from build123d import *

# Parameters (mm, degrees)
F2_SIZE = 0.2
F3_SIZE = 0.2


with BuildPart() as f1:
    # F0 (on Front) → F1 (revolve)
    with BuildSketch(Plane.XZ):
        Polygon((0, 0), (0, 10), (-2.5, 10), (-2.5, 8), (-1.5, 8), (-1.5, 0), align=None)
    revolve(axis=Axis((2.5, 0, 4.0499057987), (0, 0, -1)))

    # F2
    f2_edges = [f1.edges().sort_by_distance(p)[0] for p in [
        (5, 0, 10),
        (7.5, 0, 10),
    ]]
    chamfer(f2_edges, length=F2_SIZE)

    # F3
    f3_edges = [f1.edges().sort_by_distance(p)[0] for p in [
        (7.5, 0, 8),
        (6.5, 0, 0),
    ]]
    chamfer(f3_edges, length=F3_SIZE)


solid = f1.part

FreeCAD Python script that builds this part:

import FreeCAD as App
import Part
import Sketcher

V = App.Vector
Q = App.Units.Quantity


def edges_at(feature, points):
    """Names of the edges that pass closest to the given points."""
    edges = feature.Shape.Edges
    near = lambda p: min(range(len(edges)), key=lambda i: edges[i].distToShape(Part.Vertex(*p))[0])
    return sorted({f"Edge{near(p) + 1}" for p in points})


def add_polygon(sketch, points):
    """Adds a closed chain of lines whose ends are joined by coincident constraints."""
    first, n = sketch.GeometryCount, len(points)
    for a, b in zip(points, points[1:] + points[:1]):
        sketch.addGeometry(Part.LineSegment(App.Vector(*a, 0), App.Vector(*b, 0)), False)
    for i in range(n):
        sketch.addConstraint(Sketcher.Constraint("Coincident", first + i, 2, first + (i + 1) % n, 1))

doc = App.newDocument("Part")
body = doc.addObject("PartDesign::Body", "Body")

# Sketch on XZ plane
sketch1 = body.newObject("Sketcher::SketchObject", "Sketch")
sketch1.AttachmentSupport = (doc.getObject("XZ_Plane"), [""])
sketch1.MapMode = "FlatFace"
add_polygon(sketch1, [(0, 0), (0, 10), (-2.5, 10), (-2.5, 8), (-1.5, 8), (-1.5, 0)])  # lines 0-5
sketch1.addGeometry(Part.LineSegment(V(2.5, 10, 0), V(2.5, 0, 0)), True)  # axis
sketch1.addConstraint([
    Sketcher.Constraint("Vertical", 0),
    Sketcher.Constraint("Horizontal", 1),
    Sketcher.Constraint("Vertical", 2),
    Sketcher.Constraint("Horizontal", 3),
    Sketcher.Constraint("Vertical", 4),
    Sketcher.Constraint("Horizontal", 5),
    Sketcher.Constraint("Vertical", 6),
    Sketcher.Constraint("Coincident", 5, 2, -1, 1),
    Sketcher.Constraint("Symmetric", 1, 2, 6, 1, -2),
    Sketcher.Constraint("PointOnObject", 6, 2, -1),
    Sketcher.Constraint("DistanceX", 3, 1, 3, 2, Q("1 mm")),
    Sketcher.Constraint("DistanceY", 0, 1, 0, 2, Q("10 mm")),
    Sketcher.Constraint("DistanceY", 2, 2, 2, 1, Q("2 mm")),
    Sketcher.Constraint("DistanceX", 1, 2, 1, 1, Q("2.5 mm")),
])
revolution = body.newObject("PartDesign::Revolution", "Revolution")
revolution.Profile = sketch1
revolution.ReferenceAxis = (sketch1, ["Axis0"])
revolution.Angle = 360
doc.recompute()

chamfer = body.newObject("PartDesign::Chamfer", "Chamfer")
chamfer.Base = (revolution, edges_at(revolution, [(5, 0, 10), (7.5, 0, 10)]))
chamfer.Size = 0.2
doc.recompute()

chamfer2 = body.newObject("PartDesign::Chamfer", "Chamfer001")
chamfer2.Base = (chamfer, edges_at(chamfer, [(7.5, 0, 8), (6.5, 0, 0)]))
chamfer2.Size = 0.2

doc.recompute()
